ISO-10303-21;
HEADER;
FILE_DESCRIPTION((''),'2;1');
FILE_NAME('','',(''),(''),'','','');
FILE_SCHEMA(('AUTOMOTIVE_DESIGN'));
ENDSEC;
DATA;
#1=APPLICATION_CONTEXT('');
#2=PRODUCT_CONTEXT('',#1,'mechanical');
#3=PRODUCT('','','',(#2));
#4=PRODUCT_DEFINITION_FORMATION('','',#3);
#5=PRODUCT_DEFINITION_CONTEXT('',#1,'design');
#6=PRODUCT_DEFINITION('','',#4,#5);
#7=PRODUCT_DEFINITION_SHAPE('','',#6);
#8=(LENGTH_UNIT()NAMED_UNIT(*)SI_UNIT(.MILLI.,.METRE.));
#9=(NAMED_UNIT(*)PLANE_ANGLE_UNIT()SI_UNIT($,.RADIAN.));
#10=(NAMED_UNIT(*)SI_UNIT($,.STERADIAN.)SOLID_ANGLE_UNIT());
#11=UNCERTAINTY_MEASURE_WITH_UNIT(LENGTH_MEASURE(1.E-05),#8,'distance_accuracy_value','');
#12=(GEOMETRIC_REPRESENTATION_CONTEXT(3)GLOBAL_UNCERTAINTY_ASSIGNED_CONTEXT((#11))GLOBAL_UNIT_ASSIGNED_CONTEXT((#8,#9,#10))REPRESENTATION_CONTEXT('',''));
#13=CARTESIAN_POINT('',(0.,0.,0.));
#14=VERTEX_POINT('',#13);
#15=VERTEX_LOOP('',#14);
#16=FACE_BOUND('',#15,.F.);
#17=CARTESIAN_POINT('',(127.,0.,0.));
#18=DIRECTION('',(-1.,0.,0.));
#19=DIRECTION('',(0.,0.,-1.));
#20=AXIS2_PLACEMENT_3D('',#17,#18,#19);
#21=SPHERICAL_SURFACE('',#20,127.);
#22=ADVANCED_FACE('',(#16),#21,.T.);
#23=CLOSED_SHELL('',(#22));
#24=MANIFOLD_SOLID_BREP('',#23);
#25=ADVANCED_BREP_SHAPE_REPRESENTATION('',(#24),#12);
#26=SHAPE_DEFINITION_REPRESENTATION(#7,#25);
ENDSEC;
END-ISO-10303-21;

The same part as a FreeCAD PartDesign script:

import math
import FreeCAD as App
import Part
import Sketcher
Q = App.Units.Quantity

doc = App.newDocument("Part")
params = doc.addObject("Spreadsheet::Sheet", "Params")
for row, (alias, value) in enumerate([
    ("sketch1_radius", "5 in"),
    ("revolution_angle", "360 deg"),
], start=1):
    params.set(f"A{row}", alias)
    params.set(f"B{row}", "=" + value)
    params.setAlias(f"B{row}", alias)

body = doc.addObject("PartDesign::Body", "Body")

# Sketch on XZ plane
sketch1 = body.newObject("Sketcher::SketchObject", "Sketch")
sketch1.AttachmentSupport = (doc.getObject("XZ_Plane"), [""])
sketch1.MapMode = "FlatFace"
sketch1.addGeometry(Part.ArcOfCircle(Part.Circle(App.Vector(127, 0, 0), App.Vector(0, 0, 1), 127), math.radians(180), math.radians(360)), False)
sketch1.addGeometry(Part.LineSegment(App.Vector(0, 0, 0), App.Vector(254, 0, 0)), False)
sketch1.addConstraint(Sketcher.Constraint("Coincident", 0, 1, 1, 1))
sketch1.addConstraint(Sketcher.Constraint("Coincident", 1, 2, 0, 2))
sketch1.addConstraint(Sketcher.Constraint("Horizontal", 1))
sketch1.addConstraint(Sketcher.Constraint("Coincident", 0, 1, -1, 1))
sketch1.addConstraint(Sketcher.Constraint("PointOnObject", 0, 3, -1))
sketch1.addConstraint(Sketcher.Constraint("Radius", 0, Q("5 in")))
sketch1.setExpression("Constraints[5]", "Params.sketch1_radius")
revolution = body.newObject("PartDesign::Revolution", "Revolution")
revolution.Profile = sketch1
revolution.ReferenceAxis = (sketch1, ["H_Axis"])
revolution.setExpression("Angle", "Params.revolution_angle")

doc.recompute()
